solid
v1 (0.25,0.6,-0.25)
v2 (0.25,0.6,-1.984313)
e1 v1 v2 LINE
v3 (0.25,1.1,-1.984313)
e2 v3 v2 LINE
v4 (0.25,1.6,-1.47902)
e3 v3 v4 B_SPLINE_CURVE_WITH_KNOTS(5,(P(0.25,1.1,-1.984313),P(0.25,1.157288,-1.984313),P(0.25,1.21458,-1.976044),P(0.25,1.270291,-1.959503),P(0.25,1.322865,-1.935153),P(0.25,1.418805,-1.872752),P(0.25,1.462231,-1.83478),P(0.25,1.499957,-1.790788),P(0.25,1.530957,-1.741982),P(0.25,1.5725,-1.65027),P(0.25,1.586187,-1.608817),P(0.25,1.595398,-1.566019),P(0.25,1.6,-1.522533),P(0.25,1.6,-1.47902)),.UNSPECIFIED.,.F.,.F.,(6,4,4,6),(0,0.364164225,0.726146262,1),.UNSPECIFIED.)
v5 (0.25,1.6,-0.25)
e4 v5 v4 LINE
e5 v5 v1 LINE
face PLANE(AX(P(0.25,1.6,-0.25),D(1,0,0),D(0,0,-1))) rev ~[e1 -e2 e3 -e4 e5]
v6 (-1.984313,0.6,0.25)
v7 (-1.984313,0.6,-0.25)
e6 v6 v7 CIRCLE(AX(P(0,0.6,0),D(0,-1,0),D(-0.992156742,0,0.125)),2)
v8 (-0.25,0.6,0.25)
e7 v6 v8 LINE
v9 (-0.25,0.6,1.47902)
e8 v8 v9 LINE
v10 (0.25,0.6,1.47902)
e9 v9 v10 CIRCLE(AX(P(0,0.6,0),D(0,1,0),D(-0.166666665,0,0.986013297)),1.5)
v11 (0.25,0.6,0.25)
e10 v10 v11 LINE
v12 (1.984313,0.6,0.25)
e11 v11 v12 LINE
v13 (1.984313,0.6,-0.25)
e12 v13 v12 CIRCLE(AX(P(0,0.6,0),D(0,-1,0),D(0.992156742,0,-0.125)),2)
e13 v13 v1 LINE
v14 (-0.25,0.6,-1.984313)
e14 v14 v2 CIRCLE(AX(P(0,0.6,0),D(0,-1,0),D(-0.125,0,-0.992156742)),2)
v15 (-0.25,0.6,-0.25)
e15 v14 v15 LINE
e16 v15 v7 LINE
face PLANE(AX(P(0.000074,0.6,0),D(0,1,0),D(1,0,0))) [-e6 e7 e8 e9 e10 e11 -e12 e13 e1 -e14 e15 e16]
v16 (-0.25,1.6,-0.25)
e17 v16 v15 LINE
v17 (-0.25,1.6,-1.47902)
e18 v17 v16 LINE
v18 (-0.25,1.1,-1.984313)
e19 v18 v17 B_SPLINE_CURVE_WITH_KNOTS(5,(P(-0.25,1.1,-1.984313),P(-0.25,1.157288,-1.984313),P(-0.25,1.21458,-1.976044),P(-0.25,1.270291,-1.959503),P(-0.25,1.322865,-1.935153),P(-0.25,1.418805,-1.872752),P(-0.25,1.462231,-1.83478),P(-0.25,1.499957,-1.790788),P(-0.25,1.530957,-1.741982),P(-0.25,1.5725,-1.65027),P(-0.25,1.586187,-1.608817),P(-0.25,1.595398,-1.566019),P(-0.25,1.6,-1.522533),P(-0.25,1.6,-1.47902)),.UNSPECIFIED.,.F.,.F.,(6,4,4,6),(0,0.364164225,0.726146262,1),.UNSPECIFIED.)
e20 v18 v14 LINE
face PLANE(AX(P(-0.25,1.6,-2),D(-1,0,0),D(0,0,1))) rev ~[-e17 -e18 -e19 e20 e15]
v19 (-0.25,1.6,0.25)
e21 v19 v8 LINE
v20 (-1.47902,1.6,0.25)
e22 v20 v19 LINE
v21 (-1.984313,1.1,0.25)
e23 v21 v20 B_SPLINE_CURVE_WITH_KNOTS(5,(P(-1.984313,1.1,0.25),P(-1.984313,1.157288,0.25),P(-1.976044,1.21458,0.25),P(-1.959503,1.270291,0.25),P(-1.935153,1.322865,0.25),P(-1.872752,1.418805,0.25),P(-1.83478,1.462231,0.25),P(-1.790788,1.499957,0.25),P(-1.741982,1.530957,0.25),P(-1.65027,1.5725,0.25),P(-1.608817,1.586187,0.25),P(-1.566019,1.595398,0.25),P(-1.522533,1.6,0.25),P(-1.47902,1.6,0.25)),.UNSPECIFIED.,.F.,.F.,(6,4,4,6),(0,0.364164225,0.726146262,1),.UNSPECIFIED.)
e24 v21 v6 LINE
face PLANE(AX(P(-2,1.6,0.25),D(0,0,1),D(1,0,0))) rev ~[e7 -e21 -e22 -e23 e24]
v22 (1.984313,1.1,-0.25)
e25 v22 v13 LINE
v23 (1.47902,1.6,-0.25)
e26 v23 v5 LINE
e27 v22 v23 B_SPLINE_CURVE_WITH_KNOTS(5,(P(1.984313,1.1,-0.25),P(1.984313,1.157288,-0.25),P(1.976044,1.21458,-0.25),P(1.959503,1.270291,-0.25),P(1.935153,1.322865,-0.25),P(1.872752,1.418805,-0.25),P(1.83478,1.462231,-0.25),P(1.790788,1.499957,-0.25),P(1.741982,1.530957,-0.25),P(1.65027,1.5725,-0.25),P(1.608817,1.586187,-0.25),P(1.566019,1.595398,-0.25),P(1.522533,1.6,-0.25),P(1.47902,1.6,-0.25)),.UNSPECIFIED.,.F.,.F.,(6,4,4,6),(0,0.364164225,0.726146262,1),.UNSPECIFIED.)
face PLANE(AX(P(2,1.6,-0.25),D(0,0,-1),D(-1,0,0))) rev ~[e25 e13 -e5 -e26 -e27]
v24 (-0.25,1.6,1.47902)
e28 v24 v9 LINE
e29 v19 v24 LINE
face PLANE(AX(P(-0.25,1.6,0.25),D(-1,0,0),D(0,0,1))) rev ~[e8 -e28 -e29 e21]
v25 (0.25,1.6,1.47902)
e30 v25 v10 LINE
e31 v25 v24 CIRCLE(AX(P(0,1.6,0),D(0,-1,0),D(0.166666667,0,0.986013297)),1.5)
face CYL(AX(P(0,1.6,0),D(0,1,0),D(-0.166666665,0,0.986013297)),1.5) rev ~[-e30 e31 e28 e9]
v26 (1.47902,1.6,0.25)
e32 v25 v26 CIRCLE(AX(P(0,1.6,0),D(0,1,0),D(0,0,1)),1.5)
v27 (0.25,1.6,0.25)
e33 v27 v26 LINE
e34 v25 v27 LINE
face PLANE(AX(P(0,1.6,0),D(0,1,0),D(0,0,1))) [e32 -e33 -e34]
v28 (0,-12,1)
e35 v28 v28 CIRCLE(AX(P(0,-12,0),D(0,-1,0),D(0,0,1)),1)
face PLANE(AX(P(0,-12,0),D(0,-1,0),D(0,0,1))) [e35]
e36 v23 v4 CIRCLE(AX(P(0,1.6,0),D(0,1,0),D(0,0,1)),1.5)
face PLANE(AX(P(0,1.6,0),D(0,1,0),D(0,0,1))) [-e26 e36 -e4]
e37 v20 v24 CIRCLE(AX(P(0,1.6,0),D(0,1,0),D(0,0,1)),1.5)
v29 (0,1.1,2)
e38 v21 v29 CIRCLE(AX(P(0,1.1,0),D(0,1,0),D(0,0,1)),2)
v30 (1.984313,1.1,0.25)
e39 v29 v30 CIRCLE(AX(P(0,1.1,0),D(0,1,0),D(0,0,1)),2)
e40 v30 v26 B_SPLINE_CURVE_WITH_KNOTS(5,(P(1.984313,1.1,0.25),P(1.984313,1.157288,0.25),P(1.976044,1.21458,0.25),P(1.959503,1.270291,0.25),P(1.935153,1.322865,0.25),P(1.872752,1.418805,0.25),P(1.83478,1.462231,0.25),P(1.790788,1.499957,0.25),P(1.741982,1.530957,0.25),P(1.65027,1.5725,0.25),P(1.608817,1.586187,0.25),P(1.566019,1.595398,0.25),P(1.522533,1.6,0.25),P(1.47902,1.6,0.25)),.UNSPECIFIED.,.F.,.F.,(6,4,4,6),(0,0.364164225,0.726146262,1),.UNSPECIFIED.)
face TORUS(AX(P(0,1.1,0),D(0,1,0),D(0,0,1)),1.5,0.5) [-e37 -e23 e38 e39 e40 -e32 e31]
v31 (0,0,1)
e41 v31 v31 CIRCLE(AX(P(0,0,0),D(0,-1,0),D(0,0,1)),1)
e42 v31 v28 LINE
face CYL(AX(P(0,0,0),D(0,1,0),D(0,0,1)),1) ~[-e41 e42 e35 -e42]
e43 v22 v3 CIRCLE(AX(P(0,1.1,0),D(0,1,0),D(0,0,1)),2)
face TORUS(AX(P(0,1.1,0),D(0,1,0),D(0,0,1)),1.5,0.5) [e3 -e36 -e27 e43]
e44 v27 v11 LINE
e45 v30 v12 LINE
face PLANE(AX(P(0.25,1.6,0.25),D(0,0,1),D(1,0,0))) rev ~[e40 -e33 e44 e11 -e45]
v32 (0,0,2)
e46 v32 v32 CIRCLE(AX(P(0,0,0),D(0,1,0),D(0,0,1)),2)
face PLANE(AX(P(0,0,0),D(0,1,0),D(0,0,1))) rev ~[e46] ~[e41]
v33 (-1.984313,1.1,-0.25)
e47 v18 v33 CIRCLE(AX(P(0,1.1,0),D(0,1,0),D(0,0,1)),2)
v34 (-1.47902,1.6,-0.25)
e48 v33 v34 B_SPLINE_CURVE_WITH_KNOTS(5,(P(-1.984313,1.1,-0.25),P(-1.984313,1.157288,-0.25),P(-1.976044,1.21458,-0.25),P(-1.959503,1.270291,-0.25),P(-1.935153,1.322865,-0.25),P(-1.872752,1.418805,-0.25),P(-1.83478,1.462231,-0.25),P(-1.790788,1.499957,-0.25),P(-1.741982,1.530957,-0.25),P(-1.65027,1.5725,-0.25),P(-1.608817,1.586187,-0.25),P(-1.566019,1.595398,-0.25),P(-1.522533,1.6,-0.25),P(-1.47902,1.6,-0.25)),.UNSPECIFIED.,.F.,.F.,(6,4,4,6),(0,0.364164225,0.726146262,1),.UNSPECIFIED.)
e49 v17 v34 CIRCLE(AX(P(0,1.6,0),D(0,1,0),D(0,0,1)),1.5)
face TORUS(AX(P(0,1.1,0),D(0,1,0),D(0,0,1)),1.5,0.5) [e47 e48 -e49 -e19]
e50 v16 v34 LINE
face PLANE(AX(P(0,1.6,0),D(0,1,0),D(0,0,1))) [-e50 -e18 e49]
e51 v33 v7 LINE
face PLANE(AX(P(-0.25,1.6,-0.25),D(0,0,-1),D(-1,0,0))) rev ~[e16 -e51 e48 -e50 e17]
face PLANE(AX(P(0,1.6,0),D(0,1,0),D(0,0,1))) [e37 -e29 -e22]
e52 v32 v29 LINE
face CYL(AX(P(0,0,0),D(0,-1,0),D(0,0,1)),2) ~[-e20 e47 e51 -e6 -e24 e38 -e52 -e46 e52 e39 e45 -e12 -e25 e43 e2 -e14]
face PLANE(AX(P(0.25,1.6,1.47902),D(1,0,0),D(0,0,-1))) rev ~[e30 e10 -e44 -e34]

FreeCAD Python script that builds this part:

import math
import FreeCAD as App
import Part
import Sketcher

V = App.Vector
Q = App.Units.Quantity


def edges_at(feature, points):
    """Names of the edges that pass closest to the given points."""
    edges = feature.Shape.Edges
    near = lambda p: min(range(len(edges)), key=lambda i: edges[i].distToShape(Part.Vertex(*p))[0])
    return sorted({f"Edge{near(p) + 1}" for p in points})

doc = App.newDocument("Part")
body = doc.addObject("PartDesign::Body", "Body")

sketch1 = body.newObject("Sketcher::SketchObject", "Sketch")
sketch1.AttachmentSupport = (doc.getObject("XZ_Plane"), [""])
sketch1.MapMode = "FlatFace"
sketch1.addGeometry(Part.Circle(V(0, 0, 0), V(0, 0, 1), 2), False)
sketch1.addConstraint(Sketcher.Constraint("Coincident", 0, 3, -1, 1))
sketch1.addConstraint(Sketcher.Constraint("Diameter", 0, Q("4 mm")))
pad1 = body.newObject("PartDesign::Pad", "Pad")
pad1.Profile = sketch1
pad1.Length = 1.6
pad1.Reversed = True
doc.recompute()

fillet = body.newObject("PartDesign::Fillet", "Fillet")
fillet.Base = (pad1, edges_at(pad1, [(0, 1.6, -2)]))
fillet.Radius = 0.5

sketch2 = body.newObject("Sketcher::SketchObject", "Sketch001")
sketch2.AttachmentSupport = (doc.getObject("XZ_Plane"), [""])
sketch2.MapMode = "FlatFace"
sketch2.addGeometry(Part.Circle(V(0, 0, 0), V(0, 0, 1), 1), False)
sketch2.addConstraint(Sketcher.Constraint("Coincident", 0, 3, -1, 1))
sketch2.addConstraint(Sketcher.Constraint("Diameter", 0, Q("2 mm")))
pad2 = body.newObject("PartDesign::Pad", "Pad001")
pad2.Profile = sketch2
pad2.Length = 12

sketch3 = body.newObject("Sketcher::SketchObject", "Sketch002")
sketch3.AttachmentSupport = (doc.getObject("XZ_Plane"), [""])
sketch3.MapMode = "FlatFace"
sketch3.AttachmentOffset = App.Placement(V(0, 0, -1.6), App.Rotation())
sketch3.addGeometry(Part.LineSegment(V(-0.2, -0.2, 0), V(-2, -0.2, 0)), False)
sketch3.addGeometry(Part.LineSegment(V(-2, -0.2, 0), V(-2, 0.2, 0)), False)
sketch3.addGeometry(Part.LineSegment(V(-2, 0.2, 0), V(-0.2, 0.2, 0)), False)
sketch3.addGeometry(Part.LineSegment(V(-0.2, 0.2, 0), V(-0.2, 1.5, 0)), False)
sketch3.addGeometry(Part.ArcOfCircle(Part.Circle(V(0, 0, 0), V(0, 0, 1), 1.5), math.radians(80.41), math.radians(99.59)), False)
sketch3.addGeometry(Part.LineSegment(V(0.2, 1.5, 0), V(0.2, 0.2, 0)), False)
sketch3.addGeometry(Part.LineSegment(V(0.2, 0.2, 0), V(2, 0.2, 0)), False)
sketch3.addGeometry(Part.LineSegment(V(2, 0.2, 0), V(2, -0.2, 0)), False)
sketch3.addGeometry(Part.LineSegment(V(2, -0.2, 0), V(0.2, -0.2, 0)), False)
sketch3.addGeometry(Part.LineSegment(V(0.2, -0.2, 0), V(0.2, -2, 0)), False)
sketch3.addGeometry(Part.LineSegment(V(0.2, -2, 0), V(-0.2, -2, 0)), False)
sketch3.addGeometry(Part.LineSegment(V(-0.2, -2, 0), V(-0.2, -0.2, 0)), False)
sketch3.addConstraint(Sketcher.Constraint("Coincident", 0, 2, 1, 1))
sketch3.addConstraint(Sketcher.Constraint("Coincident", 1, 2, 2, 1))
sketch3.addConstraint(Sketcher.Constraint("Coincident", 2, 2, 3, 1))
sketch3.addConstraint(Sketcher.Constraint("Coincident", 3, 2, 4, 2))
sketch3.addConstraint(Sketcher.Constraint("Coincident", 4, 1, 5, 1))
sketch3.addConstraint(Sketcher.Constraint("Coincident", 5, 2, 6, 1))
sketch3.addConstraint(Sketcher.Constraint("Coincident", 6, 2, 7, 1))
sketch3.addConstraint(Sketcher.Constraint("Coincident", 7, 2, 8, 1))
sketch3.addConstraint(Sketcher.Constraint("Coincident", 8, 2, 9, 1))
sketch3.addConstraint(Sketcher.Constraint("Coincident", 9, 2, 10, 1))
sketch3.addConstraint(Sketcher.Constraint("Coincident", 10, 2, 11, 1))
sketch3.addConstraint(Sketcher.Constraint("Coincident", 11, 2, 0, 1))
sketch3.addConstraint(Sketcher.Constraint("Horizontal", 0))
sketch3.addConstraint(Sketcher.Constraint("Vertical", 1))
sketch3.addConstraint(Sketcher.Constraint("Horizontal", 2))
sketch3.addConstraint(Sketcher.Constraint("Vertical", 3))
sketch3.addConstraint(Sketcher.Constraint("Vertical", 5))
sketch3.addConstraint(Sketcher.Constraint("Horizontal", 6))
sketch3.addConstraint(Sketcher.Constraint("Vertical", 7))
sketch3.addConstraint(Sketcher.Constraint("Horizontal", 8))
sketch3.addConstraint(Sketcher.Constraint("Vertical", 9))
sketch3.addConstraint(Sketcher.Constraint("Horizontal", 10))
sketch3.addConstraint(Sketcher.Constraint("Vertical", 11))
sketch3.addConstraint(Sketcher.Constraint("Coincident", 4, 3, -1, 1))
sketch3.addConstraint(Sketcher.Constraint("Symmetric", 0, 2, 6, 2, -1, 1))
sketch3.addConstraint(Sketcher.Constraint("Symmetric", 2, 2, 8, 2, -1, 1))
sketch3.addConstraint(Sketcher.Constraint("Symmetric", 2, 2, 5, 2, -2))
sketch3.addConstraint(Sketcher.Constraint("Vertical", 3, 2, 10, 2))
sketch3.addConstraint(Sketcher.Constraint("Equal", 10, 1))
sketch3.addConstraint(Sketcher.Constraint("Equal", 8, 9))
sketch3.addConstraint(Sketcher.Constraint("Radius", 4, Q("1.5 mm")))
sketch3.addConstraint(Sketcher.Constraint("DistanceX", 10, 2, 10, 1, Q("0.5 mm")))
sketch3.addConstraint(Sketcher.Constraint("DistanceX", 0, 2, -1, 1, Q("2 mm")))
pocket1 = body.newObject("PartDesign::Pocket", "Pocket")
pocket1.Profile = sketch3
pocket1.Length = 1
pocket1.Reversed = True

doc.recompute()
